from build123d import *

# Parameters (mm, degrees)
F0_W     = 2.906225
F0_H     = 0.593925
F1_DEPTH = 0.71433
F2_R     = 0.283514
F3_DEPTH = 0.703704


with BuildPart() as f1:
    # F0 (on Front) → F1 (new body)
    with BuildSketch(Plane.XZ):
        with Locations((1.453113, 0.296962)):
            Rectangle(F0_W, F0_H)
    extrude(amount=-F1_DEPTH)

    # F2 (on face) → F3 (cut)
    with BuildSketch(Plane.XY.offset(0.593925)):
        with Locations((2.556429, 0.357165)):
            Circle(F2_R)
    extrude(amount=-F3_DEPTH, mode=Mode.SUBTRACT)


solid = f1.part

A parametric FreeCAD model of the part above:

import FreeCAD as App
import Part
import Sketcher
Q = App.Units.Quantity


def add_polygon(sketch, points):
    """Adds a closed chain of lines whose ends are joined by coincident constraints."""
    first, n = sketch.GeometryCount, len(points)
    for a, b in zip(points, points[1:] + points[:1]):
        sketch.addGeometry(Part.LineSegment(App.Vector(*a, 0), App.Vector(*b, 0)), False)
    for i in range(n):
        sketch.addConstraint(Sketcher.Constraint("Coincident", first + i, 2, first + (i + 1) % n, 1))

doc = App.newDocument("Part")
body = doc.addObject("PartDesign::Body", "Body")

# Sketch on XZ plane
sketch1 = doc.addObject("Sketcher::SketchObject", "Sketch")
body.addObject(sketch1)
sketch1.AttachmentSupport = (doc.XZ_Plane, [""])
sketch1.MapMode = "FlatFace"
add_polygon(sketch1, [(0, 0.6), (0, 0), (2.9, 0), (2.9, 0.6)])  # lines 0-3
sketch1.addConstraint([
    Sketcher.Constraint("Vertical", 0),
    Sketcher.Constraint("Horizontal", 1),
    Sketcher.Constraint("Vertical", 2),
    Sketcher.Constraint("Horizontal", 3),
    Sketcher.Constraint("Coincident", 0, 2, -1, 1),
    Sketcher.Constraint("DistanceX", 1, 1, 1, 2, Q("2.906225 mm")),
    Sketcher.Constraint("DistanceY", 0, 2, 0, 1, Q("0.593925 mm")),
])
pad1 = doc.addObject("PartDesign::Pad", "Pad")
body.addObject(pad1)
pad1.Profile = sketch1
pad1.Length = 0.71433
pad1.Reversed = True

# Sketch on XY plane
sketch2 = doc.addObject("Sketcher::SketchObject", "Sketch001")
body.addObject(sketch2)
sketch2.AttachmentSupport = (doc.XY_Plane, [""])
sketch2.MapMode = "FlatFace"
sketch2.AttachmentOffset = App.Placement(App.Vector(0, 0, 0.593925), App.Rotation())
sketch2.addGeometry(Part.Circle(App.Vector(2.56, 0.36, 0), App.Vector(0, 0, 1), 0.28), False)
sketch2.addConstraint([
    Sketcher.Constraint("Diameter", 0, Q("0.567028 mm")),
    Sketcher.Constraint("DistanceX", -1, 1, 0, 3, Q("2.556429 mm")),
    Sketcher.Constraint("DistanceY", -1, 1, 0, 3, Q("0.357165 mm")),
])
pocket1 = doc.addObject("PartDesign::Pocket", "Pocket")
body.addObject(pocket1)
pocket1.Profile = sketch2
pocket1.Length = 0.703704

doc.recompute()
